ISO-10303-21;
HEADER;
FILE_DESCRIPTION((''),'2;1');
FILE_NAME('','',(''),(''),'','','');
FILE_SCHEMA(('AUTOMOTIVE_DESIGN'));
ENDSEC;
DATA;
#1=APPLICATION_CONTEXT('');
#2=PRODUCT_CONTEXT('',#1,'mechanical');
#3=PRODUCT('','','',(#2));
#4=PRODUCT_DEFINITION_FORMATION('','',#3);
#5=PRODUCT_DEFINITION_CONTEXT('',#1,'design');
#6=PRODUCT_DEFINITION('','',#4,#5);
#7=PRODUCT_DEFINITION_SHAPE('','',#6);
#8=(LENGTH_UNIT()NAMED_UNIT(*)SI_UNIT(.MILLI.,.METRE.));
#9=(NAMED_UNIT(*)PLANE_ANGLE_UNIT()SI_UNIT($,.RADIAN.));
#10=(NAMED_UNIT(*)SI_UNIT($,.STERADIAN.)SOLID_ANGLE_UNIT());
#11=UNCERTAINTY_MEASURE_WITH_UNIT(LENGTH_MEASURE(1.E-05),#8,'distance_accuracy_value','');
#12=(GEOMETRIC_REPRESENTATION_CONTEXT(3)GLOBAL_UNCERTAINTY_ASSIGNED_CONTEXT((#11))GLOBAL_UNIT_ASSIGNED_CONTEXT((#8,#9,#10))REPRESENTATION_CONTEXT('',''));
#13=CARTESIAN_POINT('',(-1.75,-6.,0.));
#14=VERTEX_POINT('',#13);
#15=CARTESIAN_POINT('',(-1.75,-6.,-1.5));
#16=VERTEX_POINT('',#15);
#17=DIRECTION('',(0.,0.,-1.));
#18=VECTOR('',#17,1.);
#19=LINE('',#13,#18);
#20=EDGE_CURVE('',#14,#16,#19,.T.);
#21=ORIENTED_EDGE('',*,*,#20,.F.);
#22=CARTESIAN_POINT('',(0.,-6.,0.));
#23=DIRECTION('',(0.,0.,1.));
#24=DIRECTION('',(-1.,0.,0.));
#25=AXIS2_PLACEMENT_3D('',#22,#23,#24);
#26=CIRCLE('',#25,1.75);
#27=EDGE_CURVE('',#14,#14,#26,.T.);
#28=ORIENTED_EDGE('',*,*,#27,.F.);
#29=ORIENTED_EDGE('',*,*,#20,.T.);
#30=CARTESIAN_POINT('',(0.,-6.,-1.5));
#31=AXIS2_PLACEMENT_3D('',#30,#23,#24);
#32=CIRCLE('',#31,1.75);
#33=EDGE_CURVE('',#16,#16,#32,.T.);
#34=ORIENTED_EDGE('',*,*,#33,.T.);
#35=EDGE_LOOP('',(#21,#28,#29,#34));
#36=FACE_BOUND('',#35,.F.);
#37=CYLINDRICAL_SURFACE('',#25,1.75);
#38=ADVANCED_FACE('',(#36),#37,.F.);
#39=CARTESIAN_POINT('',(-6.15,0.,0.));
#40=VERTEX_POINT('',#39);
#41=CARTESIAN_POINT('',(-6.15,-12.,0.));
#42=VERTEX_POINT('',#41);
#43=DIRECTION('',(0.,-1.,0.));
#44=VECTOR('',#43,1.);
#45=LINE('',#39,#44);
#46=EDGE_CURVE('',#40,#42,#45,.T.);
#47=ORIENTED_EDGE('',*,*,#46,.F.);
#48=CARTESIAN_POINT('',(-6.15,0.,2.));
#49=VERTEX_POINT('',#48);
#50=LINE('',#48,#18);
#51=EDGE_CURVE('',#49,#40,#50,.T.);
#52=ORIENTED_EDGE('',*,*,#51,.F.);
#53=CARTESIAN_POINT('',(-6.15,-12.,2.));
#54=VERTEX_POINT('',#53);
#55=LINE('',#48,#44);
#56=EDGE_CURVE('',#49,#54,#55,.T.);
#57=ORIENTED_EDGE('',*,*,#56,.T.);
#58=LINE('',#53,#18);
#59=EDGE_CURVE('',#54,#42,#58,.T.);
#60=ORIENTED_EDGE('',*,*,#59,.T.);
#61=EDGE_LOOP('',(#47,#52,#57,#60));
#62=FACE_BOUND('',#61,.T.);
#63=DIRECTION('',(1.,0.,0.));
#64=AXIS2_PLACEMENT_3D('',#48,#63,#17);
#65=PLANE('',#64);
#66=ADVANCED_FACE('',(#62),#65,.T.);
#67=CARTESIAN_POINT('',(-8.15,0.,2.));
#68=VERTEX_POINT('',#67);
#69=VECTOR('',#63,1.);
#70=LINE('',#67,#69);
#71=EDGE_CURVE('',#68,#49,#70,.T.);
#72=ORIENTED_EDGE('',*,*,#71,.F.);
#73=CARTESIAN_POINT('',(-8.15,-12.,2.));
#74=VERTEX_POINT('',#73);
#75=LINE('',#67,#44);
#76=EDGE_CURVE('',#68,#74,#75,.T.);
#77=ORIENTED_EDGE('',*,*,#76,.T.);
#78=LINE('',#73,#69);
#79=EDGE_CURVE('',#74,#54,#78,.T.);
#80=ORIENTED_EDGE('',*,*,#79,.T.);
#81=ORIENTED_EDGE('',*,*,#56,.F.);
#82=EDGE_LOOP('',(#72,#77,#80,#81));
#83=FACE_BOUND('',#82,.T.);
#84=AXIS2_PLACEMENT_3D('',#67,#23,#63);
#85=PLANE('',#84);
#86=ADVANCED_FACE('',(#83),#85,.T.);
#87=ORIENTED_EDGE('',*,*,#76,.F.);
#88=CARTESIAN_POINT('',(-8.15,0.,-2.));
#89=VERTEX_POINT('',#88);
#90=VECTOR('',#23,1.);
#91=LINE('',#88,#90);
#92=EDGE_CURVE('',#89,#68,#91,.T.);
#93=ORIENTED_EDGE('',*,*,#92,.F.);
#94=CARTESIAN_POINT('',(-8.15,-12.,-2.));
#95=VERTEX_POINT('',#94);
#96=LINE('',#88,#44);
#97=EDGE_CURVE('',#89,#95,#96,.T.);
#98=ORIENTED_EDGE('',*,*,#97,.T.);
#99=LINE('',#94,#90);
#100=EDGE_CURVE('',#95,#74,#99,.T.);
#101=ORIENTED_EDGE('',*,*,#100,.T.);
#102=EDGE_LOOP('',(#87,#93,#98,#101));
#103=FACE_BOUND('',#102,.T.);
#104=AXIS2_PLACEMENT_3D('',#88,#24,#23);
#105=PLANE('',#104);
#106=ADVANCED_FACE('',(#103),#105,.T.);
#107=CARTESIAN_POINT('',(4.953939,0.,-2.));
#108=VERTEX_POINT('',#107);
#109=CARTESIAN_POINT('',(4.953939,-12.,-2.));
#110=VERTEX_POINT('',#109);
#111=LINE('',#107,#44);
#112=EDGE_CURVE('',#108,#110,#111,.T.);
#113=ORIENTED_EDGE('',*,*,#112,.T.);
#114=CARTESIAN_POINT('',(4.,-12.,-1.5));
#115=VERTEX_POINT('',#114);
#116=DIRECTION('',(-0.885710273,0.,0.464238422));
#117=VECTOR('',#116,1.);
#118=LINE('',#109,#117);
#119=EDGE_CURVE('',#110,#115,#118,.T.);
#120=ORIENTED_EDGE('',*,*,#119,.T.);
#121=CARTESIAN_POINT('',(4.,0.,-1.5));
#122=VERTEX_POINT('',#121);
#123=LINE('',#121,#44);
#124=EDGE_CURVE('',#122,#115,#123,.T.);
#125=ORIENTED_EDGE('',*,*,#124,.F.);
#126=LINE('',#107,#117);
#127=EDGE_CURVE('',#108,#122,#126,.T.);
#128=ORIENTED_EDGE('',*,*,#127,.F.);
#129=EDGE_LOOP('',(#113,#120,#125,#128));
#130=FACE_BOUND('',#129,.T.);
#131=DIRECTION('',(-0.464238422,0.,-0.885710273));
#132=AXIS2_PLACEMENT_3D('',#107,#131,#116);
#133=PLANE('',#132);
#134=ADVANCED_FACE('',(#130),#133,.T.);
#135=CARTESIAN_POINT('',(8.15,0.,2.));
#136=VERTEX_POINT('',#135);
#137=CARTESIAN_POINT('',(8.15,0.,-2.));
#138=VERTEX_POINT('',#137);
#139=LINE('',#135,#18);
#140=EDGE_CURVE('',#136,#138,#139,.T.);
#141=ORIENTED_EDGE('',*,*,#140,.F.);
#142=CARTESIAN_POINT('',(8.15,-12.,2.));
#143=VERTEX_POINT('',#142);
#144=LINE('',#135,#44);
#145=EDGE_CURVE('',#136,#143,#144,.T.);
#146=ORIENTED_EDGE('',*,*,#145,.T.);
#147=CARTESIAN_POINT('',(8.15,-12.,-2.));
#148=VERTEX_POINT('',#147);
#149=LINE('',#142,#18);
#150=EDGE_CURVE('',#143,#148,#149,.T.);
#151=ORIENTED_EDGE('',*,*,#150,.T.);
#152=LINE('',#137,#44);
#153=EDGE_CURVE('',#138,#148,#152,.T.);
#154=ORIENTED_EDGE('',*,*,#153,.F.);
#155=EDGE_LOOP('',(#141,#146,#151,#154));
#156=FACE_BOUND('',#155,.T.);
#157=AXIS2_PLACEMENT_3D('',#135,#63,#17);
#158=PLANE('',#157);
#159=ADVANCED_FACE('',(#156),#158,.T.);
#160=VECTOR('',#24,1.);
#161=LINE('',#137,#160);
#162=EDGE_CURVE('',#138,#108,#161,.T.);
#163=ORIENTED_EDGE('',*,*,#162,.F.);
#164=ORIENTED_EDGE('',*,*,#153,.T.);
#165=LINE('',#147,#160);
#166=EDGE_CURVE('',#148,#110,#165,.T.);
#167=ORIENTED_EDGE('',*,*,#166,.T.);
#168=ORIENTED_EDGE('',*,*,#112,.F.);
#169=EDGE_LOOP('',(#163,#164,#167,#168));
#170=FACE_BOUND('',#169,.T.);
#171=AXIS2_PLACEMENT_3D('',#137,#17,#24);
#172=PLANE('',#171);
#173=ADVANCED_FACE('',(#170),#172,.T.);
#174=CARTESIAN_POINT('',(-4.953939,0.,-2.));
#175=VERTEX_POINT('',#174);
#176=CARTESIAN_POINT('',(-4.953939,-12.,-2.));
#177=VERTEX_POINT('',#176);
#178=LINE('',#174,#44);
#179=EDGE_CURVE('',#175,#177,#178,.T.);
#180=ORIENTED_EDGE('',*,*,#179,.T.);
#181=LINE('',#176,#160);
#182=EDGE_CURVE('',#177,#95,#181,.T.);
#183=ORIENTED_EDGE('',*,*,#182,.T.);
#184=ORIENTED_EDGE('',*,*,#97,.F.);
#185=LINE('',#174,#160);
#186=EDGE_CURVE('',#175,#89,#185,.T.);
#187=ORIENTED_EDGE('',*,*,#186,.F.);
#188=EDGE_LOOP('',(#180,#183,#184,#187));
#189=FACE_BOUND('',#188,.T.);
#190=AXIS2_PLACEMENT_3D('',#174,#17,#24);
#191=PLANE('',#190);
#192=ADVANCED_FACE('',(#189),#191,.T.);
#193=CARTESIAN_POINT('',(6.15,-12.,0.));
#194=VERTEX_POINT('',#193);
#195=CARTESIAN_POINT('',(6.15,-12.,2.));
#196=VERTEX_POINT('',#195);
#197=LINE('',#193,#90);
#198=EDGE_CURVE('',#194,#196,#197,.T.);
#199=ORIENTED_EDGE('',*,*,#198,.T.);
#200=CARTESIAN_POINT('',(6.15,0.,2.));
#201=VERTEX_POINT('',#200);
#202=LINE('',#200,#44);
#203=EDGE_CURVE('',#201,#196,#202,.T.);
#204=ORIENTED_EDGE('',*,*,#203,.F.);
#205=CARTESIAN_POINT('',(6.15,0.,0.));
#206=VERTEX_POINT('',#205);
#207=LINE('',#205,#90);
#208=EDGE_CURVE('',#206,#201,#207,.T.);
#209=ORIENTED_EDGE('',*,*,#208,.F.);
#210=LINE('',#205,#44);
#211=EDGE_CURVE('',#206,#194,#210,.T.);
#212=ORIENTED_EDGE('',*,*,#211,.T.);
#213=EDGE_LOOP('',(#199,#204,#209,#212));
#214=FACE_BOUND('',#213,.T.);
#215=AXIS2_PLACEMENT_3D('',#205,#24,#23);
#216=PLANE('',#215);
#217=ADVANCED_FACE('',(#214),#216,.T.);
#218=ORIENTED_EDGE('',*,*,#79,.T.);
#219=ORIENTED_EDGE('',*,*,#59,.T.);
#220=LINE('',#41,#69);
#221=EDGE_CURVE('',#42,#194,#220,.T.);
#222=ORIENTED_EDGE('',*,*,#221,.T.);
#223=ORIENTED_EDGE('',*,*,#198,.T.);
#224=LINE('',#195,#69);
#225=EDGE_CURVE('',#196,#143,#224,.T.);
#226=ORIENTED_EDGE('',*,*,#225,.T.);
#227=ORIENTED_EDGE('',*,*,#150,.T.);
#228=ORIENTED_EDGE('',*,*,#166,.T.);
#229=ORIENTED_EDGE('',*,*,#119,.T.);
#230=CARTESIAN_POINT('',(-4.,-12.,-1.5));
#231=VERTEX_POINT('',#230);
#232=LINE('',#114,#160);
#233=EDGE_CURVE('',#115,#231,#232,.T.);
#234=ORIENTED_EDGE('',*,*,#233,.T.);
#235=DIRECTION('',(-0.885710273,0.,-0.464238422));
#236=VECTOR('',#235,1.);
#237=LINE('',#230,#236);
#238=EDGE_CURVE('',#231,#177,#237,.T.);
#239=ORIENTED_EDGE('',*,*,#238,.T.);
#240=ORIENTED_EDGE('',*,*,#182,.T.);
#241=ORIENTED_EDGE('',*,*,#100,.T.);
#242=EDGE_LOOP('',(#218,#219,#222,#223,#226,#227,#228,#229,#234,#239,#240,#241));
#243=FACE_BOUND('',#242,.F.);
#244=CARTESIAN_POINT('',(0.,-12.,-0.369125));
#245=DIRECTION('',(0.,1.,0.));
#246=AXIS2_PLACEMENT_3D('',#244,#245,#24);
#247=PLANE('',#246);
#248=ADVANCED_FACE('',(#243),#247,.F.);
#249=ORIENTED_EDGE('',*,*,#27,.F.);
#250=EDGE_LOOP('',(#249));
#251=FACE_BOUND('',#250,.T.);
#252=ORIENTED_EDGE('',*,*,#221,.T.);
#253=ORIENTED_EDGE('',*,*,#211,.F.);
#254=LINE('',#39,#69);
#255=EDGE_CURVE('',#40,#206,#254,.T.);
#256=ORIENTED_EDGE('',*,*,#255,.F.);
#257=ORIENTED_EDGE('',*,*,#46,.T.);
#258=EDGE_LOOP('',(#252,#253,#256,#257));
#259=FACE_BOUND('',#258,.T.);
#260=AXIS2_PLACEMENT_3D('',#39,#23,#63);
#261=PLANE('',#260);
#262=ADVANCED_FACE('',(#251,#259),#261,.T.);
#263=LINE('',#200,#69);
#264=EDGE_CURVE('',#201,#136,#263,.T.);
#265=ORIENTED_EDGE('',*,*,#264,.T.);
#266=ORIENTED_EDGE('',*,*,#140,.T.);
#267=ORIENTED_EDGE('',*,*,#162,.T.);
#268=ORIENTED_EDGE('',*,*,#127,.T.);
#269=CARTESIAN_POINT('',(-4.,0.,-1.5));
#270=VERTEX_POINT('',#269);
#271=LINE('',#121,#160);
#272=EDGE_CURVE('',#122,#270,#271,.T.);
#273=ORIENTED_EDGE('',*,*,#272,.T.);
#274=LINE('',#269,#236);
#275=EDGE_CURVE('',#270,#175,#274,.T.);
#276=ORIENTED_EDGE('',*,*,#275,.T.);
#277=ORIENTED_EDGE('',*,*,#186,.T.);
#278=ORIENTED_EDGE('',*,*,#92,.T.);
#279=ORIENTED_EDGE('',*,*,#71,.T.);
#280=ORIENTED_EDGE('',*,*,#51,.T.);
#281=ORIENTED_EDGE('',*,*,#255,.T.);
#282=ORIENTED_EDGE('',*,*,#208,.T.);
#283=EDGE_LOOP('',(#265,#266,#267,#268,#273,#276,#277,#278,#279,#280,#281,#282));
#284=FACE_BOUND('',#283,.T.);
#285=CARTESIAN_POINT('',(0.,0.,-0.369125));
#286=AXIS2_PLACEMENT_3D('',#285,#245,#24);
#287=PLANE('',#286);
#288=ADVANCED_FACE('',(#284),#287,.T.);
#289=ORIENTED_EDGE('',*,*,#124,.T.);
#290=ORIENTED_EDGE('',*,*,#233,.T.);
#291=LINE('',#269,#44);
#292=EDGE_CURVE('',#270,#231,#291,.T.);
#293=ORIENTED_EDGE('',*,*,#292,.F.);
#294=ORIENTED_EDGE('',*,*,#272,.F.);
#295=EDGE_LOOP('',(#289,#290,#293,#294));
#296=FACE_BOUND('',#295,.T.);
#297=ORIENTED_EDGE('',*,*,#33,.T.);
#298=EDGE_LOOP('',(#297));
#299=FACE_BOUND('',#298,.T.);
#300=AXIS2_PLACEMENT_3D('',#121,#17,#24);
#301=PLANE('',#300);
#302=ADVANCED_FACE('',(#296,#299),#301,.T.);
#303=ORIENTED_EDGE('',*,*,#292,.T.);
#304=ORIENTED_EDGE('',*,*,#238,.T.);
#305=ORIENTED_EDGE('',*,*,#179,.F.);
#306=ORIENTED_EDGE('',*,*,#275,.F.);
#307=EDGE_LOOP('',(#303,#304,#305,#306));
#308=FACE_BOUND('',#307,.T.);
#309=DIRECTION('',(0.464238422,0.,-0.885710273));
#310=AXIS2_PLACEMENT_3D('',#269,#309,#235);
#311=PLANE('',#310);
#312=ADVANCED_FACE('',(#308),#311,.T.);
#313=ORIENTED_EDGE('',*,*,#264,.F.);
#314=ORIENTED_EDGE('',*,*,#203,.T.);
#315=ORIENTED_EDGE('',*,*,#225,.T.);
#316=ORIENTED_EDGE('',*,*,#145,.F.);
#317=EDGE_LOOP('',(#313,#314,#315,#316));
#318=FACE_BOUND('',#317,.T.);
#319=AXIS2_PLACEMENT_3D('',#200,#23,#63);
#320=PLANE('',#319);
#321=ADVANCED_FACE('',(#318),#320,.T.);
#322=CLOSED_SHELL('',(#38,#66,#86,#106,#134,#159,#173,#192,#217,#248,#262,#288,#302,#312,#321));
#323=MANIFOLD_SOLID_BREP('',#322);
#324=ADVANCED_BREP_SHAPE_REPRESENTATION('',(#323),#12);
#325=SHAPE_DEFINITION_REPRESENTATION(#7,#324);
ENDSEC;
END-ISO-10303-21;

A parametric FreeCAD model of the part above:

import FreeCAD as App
import Part
import Sketcher
from FreeCAD import Vector


def add_polygon(sketch, points):
    """Adds a closed chain of lines whose ends are joined by coincident constraints."""
    first, n = sketch.GeometryCount, len(points)
    for a, b in zip(points, points[1:] + points[:1]):
        sketch.addGeometry(Part.LineSegment(App.Vector(*a, 0), App.Vector(*b, 0)), False)
    for i in range(n):
        sketch.addConstraint(Sketcher.Constraint("Coincident", first + i, 2, first + (i + 1) % n, 1))

doc = App.newDocument("Part")
body = doc.addObject("PartDesign::Body", "Body")

sketch1 = body.newObject("Sketcher::SketchObject", "Sketch")
sketch1.AttachmentSupport = (doc.getObject("XZ_Plane"), [""])
sketch1.MapMode = "FlatFace"
add_polygon(sketch1, [(6.2, 0), (-6.2, 0), (-6.2, 2), (-8.2, 2), (-8.2, -2), (-5, -2), (-4, -1.5), (4, -1.5), (5, -2), (8.2, -2), (8.2, 2), (6.2, 2)])
sketch1.addConstraint([
    Sketcher.Constraint("Horizontal", 0),
    Sketcher.Constraint("Vertical", 1),
    Sketcher.Constraint("Horizontal", 2),
    Sketcher.Constraint("Vertical", 3),
    Sketcher.Constraint("Horizontal", 4),
    Sketcher.Constraint("Horizontal", 6),
    Sketcher.Constraint("Horizontal", 8),
    Sketcher.Constraint("Vertical", 9),
    Sketcher.Constraint("Horizontal", 10),
    Sketcher.Constraint("Vertical", 11),
    Sketcher.Constraint("Symmetric", 2, 2, 8, 2, -1, 1),
    Sketcher.Constraint("Symmetric", 0, 2, 11, 2, -1, 1),
    Sketcher.Constraint("Symmetric", 4, 2, 7, 2, -2),
    Sketcher.Constraint("Horizontal", 2, 2, 9, 2),
    Sketcher.Constraint("Equal", 10, 1),
    Sketcher.Constraint("Equal", 5, 7),
    Sketcher.Constraint("DistanceX", 2, 2, 2, 1, 2.0),
    Sketcher.Constraint("DistanceX", 6, 1, 6, 2, 8.0),
    Sketcher.Constraint("DistanceX", 0, 2, 0, 1, 12.3),
    Sketcher.Constraint("DistanceY", 5, 2, -1, 1, 1.5),
    Sketcher.Constraint("DistanceX", 4, 1, 4, 2, 3.196061),
])
pad1 = body.newObject("PartDesign::Pad", "Pad")
pad1.Profile = sketch1
pad1.Length = 12

sketch2 = body.newObject("Sketcher::SketchObject", "Sketch001")
sketch2.AttachmentSupport = (doc.getObject("XY_Plane"), [""])
sketch2.MapMode = "FlatFace"
sketch2.addGeometry(Part.Circle(Vector(0, -6, 0), Vector(0, 0, 1), 1.8), False)
sketch2.addConstraint([
    Sketcher.Constraint("PointOnObject", 0, 3, -2),
    Sketcher.Constraint("Diameter", 0, 3.5),
    Sketcher.Constraint("DistanceY", 0, 3, -1, 1, 6.0),
])
pocket1 = body.newObject("PartDesign::Pocket", "Pocket")
pocket1.Profile = sketch2
pocket1.Length = 5

doc.recompute()
